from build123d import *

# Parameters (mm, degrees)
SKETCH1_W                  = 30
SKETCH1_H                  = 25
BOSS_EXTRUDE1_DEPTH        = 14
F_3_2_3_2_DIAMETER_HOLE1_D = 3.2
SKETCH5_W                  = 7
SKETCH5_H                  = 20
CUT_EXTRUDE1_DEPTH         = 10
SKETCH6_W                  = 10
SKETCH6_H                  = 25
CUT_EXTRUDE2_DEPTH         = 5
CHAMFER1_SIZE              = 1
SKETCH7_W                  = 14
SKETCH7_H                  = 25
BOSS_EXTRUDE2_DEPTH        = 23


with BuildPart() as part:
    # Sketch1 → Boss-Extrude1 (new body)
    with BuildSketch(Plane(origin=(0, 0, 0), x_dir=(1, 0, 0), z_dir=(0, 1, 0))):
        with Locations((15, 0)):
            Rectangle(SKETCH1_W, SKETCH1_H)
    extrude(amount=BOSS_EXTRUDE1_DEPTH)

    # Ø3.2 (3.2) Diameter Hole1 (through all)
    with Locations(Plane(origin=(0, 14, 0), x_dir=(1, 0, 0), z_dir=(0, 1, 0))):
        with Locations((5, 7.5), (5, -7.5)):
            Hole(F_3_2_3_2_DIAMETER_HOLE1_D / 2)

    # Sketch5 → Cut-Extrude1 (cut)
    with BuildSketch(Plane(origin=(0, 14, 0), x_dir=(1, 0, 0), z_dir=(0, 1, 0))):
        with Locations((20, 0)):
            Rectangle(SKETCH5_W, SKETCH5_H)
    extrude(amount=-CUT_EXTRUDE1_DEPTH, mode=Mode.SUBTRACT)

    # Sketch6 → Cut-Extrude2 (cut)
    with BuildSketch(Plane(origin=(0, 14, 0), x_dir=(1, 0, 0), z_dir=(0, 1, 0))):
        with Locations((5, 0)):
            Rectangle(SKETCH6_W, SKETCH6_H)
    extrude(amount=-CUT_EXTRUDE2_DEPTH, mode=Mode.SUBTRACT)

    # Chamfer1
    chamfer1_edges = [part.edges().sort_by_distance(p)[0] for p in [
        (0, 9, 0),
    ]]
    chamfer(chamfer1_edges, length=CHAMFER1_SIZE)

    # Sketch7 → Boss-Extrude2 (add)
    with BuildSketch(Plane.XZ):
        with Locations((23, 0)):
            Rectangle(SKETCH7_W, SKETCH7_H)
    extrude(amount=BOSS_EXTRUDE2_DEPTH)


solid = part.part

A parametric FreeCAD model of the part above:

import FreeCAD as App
import Part
import Sketcher

V = App.Vector
Q = App.Units.Quantity


def edges_at(feature, points):
    """Names of the edges that pass closest to the given points."""
    edges = feature.Shape.Edges
    near = lambda p: min(range(len(edges)), key=lambda i: edges[i].distToShape(Part.Vertex(*p))[0])
    return sorted({f"Edge{near(p) + 1}" for p in points})


def add_polygon(sketch, points):
    """Adds a closed chain of lines whose ends are joined by coincident constraints."""
    first, n = sketch.GeometryCount, len(points)
    for a, b in zip(points, points[1:] + points[:1]):
        sketch.addGeometry(Part.LineSegment(App.Vector(*a, 0), App.Vector(*b, 0)), False)
    for i in range(n):
        sketch.addConstraint(Sketcher.Constraint("Coincident", first + i, 2, first + (i + 1) % n, 1))

doc = App.newDocument("Part")
body = doc.addObject("PartDesign::Body", "Body")

sketch1 = body.newObject("Sketcher::SketchObject", "Sketch")
sketch1.AttachmentSupport = (doc.getObject("XZ_Plane"), [""])
sketch1.MapMode = "FlatFace"
add_polygon(sketch1, [(0, -12.5), (0, 12.5), (30, 12.5), (30, -12.5)])
sketch1.addConstraint(Sketcher.Constraint("Vertical", 0))
sketch1.addConstraint(Sketcher.Constraint("Horizontal", 1))
sketch1.addConstraint(Sketcher.Constraint("Vertical", 2))
sketch1.addConstraint(Sketcher.Constraint("Horizontal", 3))
sketch1.addConstraint(Sketcher.Constraint("Symmetric", 0, 2, 3, 2, -1, 1))
sketch1.addConstraint(Sketcher.Constraint("DistanceX", 1, 1, 1, 2, Q("30 mm")))
sketch1.addConstraint(Sketcher.Constraint("DistanceY", 0, 1, 0, 2, Q("25 mm")))
pad1 = body.newObject("PartDesign::Pad", "Pad")
pad1.Profile = sketch1
pad1.Length = 14
pad1.Reversed = True

sketch2 = body.newObject("Sketcher::SketchObject", "Sketch001")
sketch2.AttachmentSupport = (doc.getObject("XZ_Plane"), [""])
sketch2.MapMode = "FlatFace"
sketch2.AttachmentOffset = App.Placement(V(0, 0, -14), App.Rotation())
sketch2.addGeometry(Part.Circle(V(5, -7.5, 0), V(0, 0, 1), 1.6), False)
sketch2.addGeometry(Part.Circle(V(5, 7.5, 0), V(0, 0, 1), 1.6), False)
sketch2.addConstraint(Sketcher.Constraint("Equal", 0, 1))
sketch2.addConstraint(Sketcher.Constraint("Symmetric", 0, 3, 1, 3, -1))
sketch2.addConstraint(Sketcher.Constraint("Diameter", 0, Q("3.2 mm")))
sketch2.addConstraint(Sketcher.Constraint("DistanceX", -1, 1, 0, 3, Q("5 mm")))
sketch2.addConstraint(Sketcher.Constraint("DistanceY", 0, 3, 1, 3, Q("15 mm")))
doc.recompute()
hole = body.newObject("PartDesign::Hole", "Hole")
hole.Profile = sketch2
hole.ThreadType = "None"
hole.Diameter = 3.2
hole.DepthType = "ThroughAll"
hole.Reversed = True

sketch3 = body.newObject("Sketcher::SketchObject", "Sketch002")
sketch3.AttachmentSupport = (doc.getObject("XZ_Plane"), [""])
sketch3.MapMode = "FlatFace"
sketch3.AttachmentOffset = App.Placement(V(0, 0, -14), App.Rotation())
add_polygon(sketch3, [(16.5, -10), (16.5, 10), (23.5, 10), (23.5, -10)])
sketch3.addConstraint(Sketcher.Constraint("Vertical", 0))
sketch3.addConstraint(Sketcher.Constraint("Horizontal", 1))
sketch3.addConstraint(Sketcher.Constraint("Vertical", 2))
sketch3.addConstraint(Sketcher.Constraint("Horizontal", 3))
sketch3.addConstraint(Sketcher.Constraint("DistanceX", 1, 1, 1, 2, Q("7 mm")))
sketch3.addConstraint(Sketcher.Constraint("DistanceY", 0, 1, 0, 2, Q("20 mm")))
sketch3.addConstraint(Sketcher.Constraint("DistanceY", -1, 1, 0, 2, Q("10 mm")))
sketch3.addConstraint(Sketcher.Constraint("DistanceX", -1, 1, 0, 2, Q("16.5 mm")))
pocket1 = body.newObject("PartDesign::Pocket", "Pocket")
pocket1.Profile = sketch3
pocket1.Length = 10
pocket1.Reversed = True

sketch4 = body.newObject("Sketcher::SketchObject", "Sketch003")
sketch4.AttachmentSupport = (doc.getObject("XZ_Plane"), [""])
sketch4.MapMode = "FlatFace"
sketch4.AttachmentOffset = App.Placement(V(0, 0, -14), App.Rotation())
add_polygon(sketch4, [(0, -12.5), (0, 12.5), (10, 12.5), (10, -12.5)])
sketch4.addConstraint(Sketcher.Constraint("Vertical", 0))
sketch4.addConstraint(Sketcher.Constraint("Horizontal", 1))
sketch4.addConstraint(Sketcher.Constraint("Vertical", 2))
sketch4.addConstraint(Sketcher.Constraint("Horizontal", 3))
sketch4.addConstraint(Sketcher.Constraint("Symmetric", 0, 2, 3, 2, -1, 1))
sketch4.addConstraint(Sketcher.Constraint("DistanceX", 1, 1, 1, 2, Q("10 mm")))
sketch4.addConstraint(Sketcher.Constraint("DistanceY", 0, 1, 0, 2, Q("25 mm")))
pocket2 = body.newObject("PartDesign::Pocket", "Pocket001")
pocket2.Profile = sketch4
pocket2.Length = 5
pocket2.Reversed = True
doc.recompute()

chamfer = body.newObject("PartDesign::Chamfer", "Chamfer")
chamfer.Base = (pocket2, edges_at(pocket2, [(0, 9, 0)]))
chamfer.Size = 1

sketch5 = body.newObject("Sketcher::SketchObject", "Sketch004")
sketch5.AttachmentSupport = (doc.getObject("XZ_Plane"), [""])
sketch5.MapMode = "FlatFace"
add_polygon(sketch5, [(16, 12.5), (16, -12.5), (30, -12.5), (30, 12.5)])
sketch5.addConstraint(Sketcher.Constraint("Vertical", 0))
sketch5.addConstraint(Sketcher.Constraint("Horizontal", 1))
sketch5.addConstraint(Sketcher.Constraint("Vertical", 2))
sketch5.addConstraint(Sketcher.Constraint("Horizontal", 3))
sketch5.addConstraint(Sketcher.Constraint("DistanceX", 1, 1, 1, 2, Q("14 mm")))
sketch5.addConstraint(Sketcher.Constraint("DistanceY", 0, 2, 0, 1, Q("25 mm")))
sketch5.addConstraint(Sketcher.Constraint("DistanceX", -1, 1, 0, 2, Q("16 mm")))
sketch5.addConstraint(Sketcher.Constraint("DistanceY", 0, 2, -1, 1, Q("12.5 mm")))
pad2 = body.newObject("PartDesign::Pad", "Pad001")
pad2.Profile = sketch5
pad2.Length = 23

doc.recompute()
